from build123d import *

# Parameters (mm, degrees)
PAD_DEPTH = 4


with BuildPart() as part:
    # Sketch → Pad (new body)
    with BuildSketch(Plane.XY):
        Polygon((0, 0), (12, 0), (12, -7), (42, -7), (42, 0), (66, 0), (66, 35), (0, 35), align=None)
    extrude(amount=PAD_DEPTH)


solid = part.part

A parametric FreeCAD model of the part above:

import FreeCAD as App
import Part
import Sketcher
from FreeCAD import Vector
Q = App.Units.Quantity

doc = App.newDocument("Part")
body = doc.addObject("PartDesign::Body", "Body")

sketch1 = body.newObject("Sketcher::SketchObject", "Sketch")
sketch1.AttachmentSupport = (doc.getObject("XY_Plane"), [""])
sketch1.MapMode = "FlatFace"
sketch1.addGeometry([
    Part.LineSegment(Vector(0, 0, 0), Vector(12, 0, 0)),
    Part.LineSegment(Vector(12, 0, 0), Vector(12, -7, 0)),
    Part.LineSegment(Vector(12, -7, 0), Vector(42, -7, 0)),
    Part.LineSegment(Vector(42, -7, 0), Vector(42, 0, 0)),
    Part.LineSegment(Vector(42, 0, 0), Vector(66, 0, 0)),
    Part.LineSegment(Vector(66, 0, 0), Vector(66, 35, 0)),
    Part.LineSegment(Vector(66, 35, 0), Vector(0, 35, 0)),
    Part.LineSegment(Vector(0, 35, 0), Vector(0, 0, 0)),
], False)
sketch1.addConstraint([
    Sketcher.Constraint("Coincident", 0, 2, 1, 1),
    Sketcher.Constraint("Coincident", 1, 2, 2, 1),
    Sketcher.Constraint("Coincident", 2, 2, 3, 1),
    Sketcher.Constraint("Coincident", 3, 2, 4, 1),
    Sketcher.Constraint("Coincident", 4, 2, 5, 1),
    Sketcher.Constraint("Coincident", 5, 2, 6, 1),
    Sketcher.Constraint("Coincident", 6, 2, 7, 1),
    Sketcher.Constraint("Coincident", 7, 2, 0, 1),
    Sketcher.Constraint("Horizontal", 0),
    Sketcher.Constraint("Vertical", 1),
    Sketcher.Constraint("Horizontal", 2),
    Sketcher.Constraint("Vertical", 3),
    Sketcher.Constraint("Horizontal", 4),
    Sketcher.Constraint("Vertical", 5),
    Sketcher.Constraint("Horizontal", 6),
    Sketcher.Constraint("Vertical", 7),
    Sketcher.Constraint("Coincident", 7, 2, -1, 1),
    Sketcher.Constraint("PointOnObject", 3, 2, -1),
    Sketcher.Constraint("DistanceX", 0, 1, 0, 2, Q("12 mm")),
    Sketcher.Constraint("DistanceX", 2, 1, 2, 2, Q("30 mm")),
    Sketcher.Constraint("DistanceX", 4, 1, 4, 2, Q("24 mm")),
    Sketcher.Constraint("DistanceY", 1, 2, 1, 1, Q("7 mm")),
    Sketcher.Constraint("DistanceY", 5, 1, 5, 2, Q("35 mm")),
])
pad1 = body.newObject("PartDesign::Pad", "Pad")
pad1.Profile = sketch1
pad1.Length = 4

doc.recompute()
